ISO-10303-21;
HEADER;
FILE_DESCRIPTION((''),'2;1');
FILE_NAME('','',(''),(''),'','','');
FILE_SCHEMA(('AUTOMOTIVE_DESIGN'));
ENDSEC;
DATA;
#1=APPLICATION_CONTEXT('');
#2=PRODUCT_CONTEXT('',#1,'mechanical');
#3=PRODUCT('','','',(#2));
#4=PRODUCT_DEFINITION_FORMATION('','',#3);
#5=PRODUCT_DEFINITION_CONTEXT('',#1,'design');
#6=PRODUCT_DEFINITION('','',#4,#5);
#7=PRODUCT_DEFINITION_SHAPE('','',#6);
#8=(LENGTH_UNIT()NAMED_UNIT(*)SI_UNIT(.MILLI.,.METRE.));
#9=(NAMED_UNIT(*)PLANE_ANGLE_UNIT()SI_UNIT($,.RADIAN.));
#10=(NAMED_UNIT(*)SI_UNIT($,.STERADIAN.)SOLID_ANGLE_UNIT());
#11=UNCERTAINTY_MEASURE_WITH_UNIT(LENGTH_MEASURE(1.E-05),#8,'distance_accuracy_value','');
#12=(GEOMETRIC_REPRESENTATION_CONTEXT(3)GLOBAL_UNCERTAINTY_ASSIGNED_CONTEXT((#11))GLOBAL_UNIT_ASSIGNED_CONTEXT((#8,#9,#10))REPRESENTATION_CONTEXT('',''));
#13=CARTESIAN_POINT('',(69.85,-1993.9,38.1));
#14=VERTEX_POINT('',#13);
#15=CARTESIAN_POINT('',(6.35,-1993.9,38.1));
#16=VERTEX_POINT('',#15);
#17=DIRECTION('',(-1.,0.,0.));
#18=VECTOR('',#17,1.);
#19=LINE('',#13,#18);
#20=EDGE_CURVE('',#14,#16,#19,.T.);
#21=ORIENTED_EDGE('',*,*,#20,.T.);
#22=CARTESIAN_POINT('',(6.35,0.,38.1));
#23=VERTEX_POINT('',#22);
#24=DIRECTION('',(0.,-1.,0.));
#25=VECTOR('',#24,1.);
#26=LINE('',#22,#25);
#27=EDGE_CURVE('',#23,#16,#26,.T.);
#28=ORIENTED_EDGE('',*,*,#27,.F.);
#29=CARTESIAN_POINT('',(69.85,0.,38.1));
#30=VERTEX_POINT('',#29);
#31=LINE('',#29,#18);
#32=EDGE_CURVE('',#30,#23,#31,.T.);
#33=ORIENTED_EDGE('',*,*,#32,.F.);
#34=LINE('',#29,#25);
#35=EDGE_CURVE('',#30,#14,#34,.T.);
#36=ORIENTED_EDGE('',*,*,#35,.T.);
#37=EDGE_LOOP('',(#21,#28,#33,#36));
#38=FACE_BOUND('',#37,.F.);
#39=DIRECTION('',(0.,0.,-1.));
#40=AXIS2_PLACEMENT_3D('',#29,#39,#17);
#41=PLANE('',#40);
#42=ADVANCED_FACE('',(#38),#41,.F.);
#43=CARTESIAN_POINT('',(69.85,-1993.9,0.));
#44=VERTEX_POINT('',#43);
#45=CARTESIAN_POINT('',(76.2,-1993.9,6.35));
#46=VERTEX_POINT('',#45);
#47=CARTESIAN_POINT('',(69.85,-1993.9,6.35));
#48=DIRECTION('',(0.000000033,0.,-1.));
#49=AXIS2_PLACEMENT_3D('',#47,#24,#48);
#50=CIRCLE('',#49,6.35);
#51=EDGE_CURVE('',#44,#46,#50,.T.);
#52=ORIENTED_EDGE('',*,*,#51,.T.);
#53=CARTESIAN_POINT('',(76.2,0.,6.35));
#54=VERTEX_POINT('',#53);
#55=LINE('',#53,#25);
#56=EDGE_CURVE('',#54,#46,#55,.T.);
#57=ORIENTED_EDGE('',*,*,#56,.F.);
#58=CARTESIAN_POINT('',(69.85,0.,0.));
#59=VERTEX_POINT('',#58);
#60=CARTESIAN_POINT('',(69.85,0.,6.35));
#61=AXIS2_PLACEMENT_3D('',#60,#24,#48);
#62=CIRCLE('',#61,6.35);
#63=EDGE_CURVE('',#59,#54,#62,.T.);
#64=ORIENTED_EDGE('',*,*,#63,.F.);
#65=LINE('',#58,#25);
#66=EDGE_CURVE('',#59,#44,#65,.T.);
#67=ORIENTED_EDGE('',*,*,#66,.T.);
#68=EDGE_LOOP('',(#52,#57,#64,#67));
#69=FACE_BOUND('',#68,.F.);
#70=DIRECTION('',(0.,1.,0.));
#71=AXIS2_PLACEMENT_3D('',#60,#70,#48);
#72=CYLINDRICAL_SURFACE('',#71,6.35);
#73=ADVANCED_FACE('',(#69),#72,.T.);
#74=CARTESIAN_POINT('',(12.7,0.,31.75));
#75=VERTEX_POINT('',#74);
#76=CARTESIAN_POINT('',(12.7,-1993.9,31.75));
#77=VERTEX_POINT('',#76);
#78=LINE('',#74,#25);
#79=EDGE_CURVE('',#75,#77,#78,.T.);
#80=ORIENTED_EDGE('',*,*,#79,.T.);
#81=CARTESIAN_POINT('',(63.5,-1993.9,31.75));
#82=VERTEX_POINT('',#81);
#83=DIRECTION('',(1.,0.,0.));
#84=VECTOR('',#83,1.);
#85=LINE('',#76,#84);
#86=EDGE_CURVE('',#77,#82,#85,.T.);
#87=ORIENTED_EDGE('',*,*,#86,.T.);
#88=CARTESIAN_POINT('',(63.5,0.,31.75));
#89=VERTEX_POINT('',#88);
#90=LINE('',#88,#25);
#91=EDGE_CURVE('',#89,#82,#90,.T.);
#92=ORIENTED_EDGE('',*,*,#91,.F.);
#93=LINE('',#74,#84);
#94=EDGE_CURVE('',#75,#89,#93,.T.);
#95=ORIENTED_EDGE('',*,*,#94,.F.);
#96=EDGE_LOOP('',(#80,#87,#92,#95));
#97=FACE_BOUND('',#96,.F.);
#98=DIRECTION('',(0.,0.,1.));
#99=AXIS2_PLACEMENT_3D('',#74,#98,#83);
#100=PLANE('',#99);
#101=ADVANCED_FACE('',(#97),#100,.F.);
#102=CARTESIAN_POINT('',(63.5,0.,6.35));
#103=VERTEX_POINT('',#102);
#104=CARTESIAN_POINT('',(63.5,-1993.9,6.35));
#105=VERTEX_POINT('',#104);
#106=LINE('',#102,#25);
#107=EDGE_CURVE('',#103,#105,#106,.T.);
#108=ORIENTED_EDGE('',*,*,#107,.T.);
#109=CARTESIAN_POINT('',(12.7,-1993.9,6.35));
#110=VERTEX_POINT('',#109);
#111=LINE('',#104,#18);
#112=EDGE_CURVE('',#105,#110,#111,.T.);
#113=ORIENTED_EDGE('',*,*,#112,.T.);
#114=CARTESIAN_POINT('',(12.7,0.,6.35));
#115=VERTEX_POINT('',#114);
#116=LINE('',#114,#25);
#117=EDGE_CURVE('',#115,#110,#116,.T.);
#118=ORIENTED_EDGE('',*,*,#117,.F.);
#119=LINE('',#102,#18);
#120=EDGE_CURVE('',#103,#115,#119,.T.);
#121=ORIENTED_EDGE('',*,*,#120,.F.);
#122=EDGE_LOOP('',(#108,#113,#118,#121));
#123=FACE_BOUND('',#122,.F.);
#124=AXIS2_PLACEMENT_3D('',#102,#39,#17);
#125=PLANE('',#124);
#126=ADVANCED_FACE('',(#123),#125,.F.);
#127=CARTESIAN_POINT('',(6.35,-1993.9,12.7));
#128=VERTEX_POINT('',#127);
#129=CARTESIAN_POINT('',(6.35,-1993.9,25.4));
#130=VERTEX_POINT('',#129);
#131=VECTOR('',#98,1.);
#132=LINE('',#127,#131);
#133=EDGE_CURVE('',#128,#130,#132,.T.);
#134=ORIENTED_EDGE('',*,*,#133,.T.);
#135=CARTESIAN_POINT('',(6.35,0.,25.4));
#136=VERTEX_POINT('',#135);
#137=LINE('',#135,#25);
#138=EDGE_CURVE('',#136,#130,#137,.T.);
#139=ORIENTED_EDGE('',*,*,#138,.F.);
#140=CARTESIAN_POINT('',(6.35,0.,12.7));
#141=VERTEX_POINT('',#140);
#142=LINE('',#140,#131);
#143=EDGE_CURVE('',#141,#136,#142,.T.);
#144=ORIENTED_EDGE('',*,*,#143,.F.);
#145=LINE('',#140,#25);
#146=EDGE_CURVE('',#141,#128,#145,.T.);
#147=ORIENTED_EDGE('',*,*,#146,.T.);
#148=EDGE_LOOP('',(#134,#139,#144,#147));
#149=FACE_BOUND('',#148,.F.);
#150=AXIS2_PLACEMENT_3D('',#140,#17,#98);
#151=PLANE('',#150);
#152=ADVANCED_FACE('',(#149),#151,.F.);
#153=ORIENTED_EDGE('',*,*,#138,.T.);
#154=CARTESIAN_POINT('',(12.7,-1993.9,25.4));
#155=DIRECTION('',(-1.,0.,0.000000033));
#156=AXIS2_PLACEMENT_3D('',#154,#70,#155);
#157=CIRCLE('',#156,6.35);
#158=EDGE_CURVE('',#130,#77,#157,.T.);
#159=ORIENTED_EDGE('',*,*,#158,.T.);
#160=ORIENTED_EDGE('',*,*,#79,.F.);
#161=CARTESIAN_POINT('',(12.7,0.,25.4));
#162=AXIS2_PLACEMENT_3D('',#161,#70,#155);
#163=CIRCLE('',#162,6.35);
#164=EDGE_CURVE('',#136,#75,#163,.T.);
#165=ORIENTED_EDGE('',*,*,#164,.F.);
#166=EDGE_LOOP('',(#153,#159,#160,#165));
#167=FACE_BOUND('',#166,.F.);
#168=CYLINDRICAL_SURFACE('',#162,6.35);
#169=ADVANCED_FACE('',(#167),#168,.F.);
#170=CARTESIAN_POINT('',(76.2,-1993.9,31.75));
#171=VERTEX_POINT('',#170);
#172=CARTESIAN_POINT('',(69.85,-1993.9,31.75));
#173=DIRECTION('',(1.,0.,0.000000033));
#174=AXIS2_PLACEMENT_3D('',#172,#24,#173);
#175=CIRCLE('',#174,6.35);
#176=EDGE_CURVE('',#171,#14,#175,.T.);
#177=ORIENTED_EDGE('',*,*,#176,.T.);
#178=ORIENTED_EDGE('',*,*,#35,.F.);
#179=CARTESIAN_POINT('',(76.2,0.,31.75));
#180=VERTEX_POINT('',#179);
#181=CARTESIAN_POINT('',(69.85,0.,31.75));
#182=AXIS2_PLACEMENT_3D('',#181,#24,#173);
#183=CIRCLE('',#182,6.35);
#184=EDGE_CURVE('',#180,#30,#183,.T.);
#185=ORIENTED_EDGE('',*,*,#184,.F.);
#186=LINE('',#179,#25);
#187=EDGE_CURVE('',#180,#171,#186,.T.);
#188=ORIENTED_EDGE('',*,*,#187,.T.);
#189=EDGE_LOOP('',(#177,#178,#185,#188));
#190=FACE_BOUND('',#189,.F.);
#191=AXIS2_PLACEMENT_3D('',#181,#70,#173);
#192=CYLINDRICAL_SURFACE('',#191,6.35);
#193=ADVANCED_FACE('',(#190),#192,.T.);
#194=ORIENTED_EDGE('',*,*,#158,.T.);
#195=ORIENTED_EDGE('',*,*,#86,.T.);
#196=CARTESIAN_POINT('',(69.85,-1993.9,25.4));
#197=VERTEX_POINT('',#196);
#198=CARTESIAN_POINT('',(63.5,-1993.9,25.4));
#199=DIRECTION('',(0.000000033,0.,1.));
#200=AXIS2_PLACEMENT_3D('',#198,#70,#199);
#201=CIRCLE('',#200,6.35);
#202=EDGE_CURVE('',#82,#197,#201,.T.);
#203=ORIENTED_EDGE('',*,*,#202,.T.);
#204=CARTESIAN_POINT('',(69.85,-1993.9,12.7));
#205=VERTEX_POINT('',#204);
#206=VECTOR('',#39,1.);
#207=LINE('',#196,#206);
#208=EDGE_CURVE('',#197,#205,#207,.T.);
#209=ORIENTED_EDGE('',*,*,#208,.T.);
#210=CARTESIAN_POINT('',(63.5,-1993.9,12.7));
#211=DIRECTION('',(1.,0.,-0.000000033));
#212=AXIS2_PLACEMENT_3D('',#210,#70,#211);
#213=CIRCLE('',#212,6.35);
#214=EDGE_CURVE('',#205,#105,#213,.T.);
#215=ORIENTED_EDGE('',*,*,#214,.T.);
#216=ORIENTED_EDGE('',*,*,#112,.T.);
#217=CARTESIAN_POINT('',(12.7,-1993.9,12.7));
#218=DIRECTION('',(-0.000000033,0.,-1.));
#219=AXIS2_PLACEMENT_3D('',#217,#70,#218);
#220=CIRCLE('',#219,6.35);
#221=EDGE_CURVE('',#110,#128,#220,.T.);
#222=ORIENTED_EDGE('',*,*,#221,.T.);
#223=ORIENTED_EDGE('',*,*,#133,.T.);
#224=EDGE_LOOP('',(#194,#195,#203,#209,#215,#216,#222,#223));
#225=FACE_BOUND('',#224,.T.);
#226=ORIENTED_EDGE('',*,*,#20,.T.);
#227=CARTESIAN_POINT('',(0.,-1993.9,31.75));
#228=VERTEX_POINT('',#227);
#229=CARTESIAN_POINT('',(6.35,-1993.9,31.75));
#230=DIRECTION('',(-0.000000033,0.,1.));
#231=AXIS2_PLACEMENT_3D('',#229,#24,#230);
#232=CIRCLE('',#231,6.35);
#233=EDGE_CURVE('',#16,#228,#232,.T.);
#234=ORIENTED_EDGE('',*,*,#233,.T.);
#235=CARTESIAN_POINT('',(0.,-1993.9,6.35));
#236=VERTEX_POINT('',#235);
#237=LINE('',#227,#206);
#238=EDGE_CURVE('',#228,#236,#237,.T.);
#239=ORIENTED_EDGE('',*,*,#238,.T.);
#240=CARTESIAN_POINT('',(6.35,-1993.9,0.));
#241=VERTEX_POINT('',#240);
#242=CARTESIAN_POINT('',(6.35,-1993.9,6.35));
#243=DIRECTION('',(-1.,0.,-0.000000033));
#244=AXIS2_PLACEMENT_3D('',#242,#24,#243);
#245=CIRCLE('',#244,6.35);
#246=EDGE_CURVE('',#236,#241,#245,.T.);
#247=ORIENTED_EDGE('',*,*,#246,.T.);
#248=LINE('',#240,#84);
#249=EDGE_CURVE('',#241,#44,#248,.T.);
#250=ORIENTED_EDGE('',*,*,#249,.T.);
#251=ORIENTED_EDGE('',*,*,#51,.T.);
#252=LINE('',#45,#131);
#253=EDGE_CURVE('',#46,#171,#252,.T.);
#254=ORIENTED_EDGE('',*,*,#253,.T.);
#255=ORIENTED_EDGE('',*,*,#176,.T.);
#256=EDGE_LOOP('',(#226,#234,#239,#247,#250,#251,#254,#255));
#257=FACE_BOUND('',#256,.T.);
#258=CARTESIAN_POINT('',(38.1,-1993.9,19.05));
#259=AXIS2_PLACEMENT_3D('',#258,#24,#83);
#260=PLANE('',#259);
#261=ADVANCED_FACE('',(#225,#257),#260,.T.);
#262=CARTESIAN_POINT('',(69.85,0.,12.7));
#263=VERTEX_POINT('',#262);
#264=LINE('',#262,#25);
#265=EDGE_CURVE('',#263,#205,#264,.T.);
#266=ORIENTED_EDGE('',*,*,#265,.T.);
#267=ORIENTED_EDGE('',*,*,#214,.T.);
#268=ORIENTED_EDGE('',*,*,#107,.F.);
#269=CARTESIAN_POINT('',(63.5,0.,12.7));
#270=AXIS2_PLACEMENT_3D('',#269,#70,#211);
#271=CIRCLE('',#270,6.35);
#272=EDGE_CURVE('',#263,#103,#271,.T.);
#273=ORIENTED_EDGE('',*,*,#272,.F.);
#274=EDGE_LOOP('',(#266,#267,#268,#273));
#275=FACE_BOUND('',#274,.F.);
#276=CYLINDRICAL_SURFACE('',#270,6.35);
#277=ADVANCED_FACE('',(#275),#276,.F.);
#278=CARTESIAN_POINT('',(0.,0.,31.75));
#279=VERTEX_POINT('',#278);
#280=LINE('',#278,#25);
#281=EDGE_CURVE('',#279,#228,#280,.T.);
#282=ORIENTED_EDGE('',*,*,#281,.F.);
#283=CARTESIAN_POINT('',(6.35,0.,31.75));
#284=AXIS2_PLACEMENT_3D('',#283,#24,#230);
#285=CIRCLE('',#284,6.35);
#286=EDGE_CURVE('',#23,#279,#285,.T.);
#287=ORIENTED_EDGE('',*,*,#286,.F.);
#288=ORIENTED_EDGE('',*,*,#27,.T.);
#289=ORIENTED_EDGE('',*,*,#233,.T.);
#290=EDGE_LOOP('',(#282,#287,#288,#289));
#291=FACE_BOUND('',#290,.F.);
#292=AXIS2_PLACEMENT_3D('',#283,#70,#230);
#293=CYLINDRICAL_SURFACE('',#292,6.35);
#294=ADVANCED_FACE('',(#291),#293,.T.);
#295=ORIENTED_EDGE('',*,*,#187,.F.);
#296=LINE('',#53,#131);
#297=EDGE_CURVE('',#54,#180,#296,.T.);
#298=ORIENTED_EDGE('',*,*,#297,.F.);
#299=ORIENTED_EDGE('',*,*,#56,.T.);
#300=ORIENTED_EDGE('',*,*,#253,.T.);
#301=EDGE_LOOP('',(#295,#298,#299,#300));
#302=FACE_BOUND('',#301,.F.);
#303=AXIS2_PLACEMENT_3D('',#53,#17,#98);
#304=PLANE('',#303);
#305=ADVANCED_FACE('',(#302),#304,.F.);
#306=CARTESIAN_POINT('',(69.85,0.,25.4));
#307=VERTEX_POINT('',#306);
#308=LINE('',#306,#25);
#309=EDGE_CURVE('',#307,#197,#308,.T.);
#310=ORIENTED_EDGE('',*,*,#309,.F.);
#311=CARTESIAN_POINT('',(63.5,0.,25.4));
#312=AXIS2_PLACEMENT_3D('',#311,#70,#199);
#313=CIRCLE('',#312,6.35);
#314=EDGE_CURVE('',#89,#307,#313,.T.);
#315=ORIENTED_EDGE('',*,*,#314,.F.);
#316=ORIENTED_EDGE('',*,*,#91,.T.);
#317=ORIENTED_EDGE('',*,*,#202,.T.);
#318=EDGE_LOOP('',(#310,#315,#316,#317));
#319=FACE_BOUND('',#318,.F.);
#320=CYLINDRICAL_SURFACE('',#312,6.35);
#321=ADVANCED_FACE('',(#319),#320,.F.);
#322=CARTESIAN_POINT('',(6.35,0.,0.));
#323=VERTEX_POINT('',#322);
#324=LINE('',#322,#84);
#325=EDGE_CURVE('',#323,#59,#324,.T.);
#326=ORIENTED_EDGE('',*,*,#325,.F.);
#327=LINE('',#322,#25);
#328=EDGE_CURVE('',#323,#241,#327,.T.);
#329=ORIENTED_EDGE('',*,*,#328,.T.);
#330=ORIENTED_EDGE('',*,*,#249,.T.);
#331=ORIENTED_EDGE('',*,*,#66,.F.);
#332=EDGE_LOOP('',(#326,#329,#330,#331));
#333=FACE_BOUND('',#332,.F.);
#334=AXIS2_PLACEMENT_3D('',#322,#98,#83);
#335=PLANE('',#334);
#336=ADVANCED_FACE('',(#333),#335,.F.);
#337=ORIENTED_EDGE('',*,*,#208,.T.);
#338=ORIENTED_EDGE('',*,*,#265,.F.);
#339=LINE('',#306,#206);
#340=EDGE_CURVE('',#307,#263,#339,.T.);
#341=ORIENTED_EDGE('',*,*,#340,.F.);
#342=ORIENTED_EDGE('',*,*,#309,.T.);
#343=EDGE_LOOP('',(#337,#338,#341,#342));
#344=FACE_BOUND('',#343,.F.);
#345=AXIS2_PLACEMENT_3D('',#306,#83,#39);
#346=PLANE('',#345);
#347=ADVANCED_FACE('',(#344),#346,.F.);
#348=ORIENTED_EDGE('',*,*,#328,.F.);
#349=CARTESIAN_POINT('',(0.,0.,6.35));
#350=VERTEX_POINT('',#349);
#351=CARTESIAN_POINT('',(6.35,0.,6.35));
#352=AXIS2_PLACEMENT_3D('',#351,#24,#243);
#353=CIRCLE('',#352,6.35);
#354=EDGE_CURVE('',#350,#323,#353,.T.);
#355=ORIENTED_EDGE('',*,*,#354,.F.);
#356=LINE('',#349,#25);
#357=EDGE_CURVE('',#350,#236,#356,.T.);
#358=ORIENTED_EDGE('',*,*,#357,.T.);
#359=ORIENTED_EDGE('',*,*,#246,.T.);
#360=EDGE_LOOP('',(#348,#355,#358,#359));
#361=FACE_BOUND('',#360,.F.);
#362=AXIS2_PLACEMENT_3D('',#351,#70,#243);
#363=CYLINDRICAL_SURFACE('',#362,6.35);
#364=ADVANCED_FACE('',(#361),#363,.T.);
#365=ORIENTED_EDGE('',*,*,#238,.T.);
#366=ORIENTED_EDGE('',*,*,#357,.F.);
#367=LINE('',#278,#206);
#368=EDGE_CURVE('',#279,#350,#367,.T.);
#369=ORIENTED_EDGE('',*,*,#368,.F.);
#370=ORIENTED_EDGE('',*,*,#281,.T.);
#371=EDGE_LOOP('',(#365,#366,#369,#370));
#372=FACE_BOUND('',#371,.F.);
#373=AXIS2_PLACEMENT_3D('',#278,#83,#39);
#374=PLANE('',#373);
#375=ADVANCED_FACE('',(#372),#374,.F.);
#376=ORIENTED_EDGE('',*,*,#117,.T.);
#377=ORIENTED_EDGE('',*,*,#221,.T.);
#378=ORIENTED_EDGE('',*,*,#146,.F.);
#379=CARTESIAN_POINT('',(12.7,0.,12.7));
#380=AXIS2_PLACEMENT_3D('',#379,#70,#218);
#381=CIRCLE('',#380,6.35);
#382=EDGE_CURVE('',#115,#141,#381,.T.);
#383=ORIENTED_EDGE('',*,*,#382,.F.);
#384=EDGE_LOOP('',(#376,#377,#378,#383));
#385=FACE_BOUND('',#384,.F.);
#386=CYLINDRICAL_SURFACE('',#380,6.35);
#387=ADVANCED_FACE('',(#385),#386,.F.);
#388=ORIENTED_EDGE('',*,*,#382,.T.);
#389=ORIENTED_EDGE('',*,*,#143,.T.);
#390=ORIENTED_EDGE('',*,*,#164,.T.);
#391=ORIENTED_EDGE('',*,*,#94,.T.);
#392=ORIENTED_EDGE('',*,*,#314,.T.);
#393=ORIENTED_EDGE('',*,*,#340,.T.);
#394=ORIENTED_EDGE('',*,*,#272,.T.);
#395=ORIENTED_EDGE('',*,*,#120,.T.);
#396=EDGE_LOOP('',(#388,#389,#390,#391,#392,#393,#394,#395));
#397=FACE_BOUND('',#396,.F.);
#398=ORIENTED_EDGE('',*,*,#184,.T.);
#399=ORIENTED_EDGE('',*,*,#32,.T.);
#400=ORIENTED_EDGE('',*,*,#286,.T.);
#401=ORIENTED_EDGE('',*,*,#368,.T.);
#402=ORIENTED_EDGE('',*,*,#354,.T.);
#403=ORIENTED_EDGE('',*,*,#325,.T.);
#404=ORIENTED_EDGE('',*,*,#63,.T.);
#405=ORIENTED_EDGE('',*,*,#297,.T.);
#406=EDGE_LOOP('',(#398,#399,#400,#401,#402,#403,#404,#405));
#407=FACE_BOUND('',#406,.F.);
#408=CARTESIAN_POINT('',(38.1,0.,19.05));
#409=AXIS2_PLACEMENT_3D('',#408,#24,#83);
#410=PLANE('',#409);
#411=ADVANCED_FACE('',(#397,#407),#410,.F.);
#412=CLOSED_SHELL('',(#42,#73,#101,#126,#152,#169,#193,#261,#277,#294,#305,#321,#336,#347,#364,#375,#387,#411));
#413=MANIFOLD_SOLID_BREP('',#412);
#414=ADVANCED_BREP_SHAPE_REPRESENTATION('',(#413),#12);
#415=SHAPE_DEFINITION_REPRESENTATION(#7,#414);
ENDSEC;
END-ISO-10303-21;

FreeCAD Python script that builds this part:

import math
import FreeCAD as App
import Part
import Sketcher

V = App.Vector
Q = App.Units.Quantity

doc = App.newDocument("Part")
params = doc.addObject("Spreadsheet::Sheet", "Params")
for row, (alias, value) in enumerate([
    ("sketch1_width", "2 in"),
    ("sketch1_height", "1 in"),
    ("sketch1_radius", "0.25 in"),
    ("pad1_length", "78.5 in"),
], start=1):
    params.set(f"A{row}", alias)
    params.set(f"B{row}", "=" + value)
    params.setAlias(f"B{row}", alias)

body = doc.addObject("PartDesign::Body", "Body")

# Sketch on XZ plane
sketch1 = body.newObject("Sketcher::SketchObject", "Sketch")
sketch1.AttachmentSupport = (doc.getObject("XZ_Plane"), [""])
sketch1.MapMode = "FlatFace"
sketch1.addGeometry([
    Part.ArcOfCircle(Part.Circle(V(6, 6, 0), V(0, 0, 1), 6), math.radians(-180), math.radians(-90)),  # 0
    Part.LineSegment(V(6, 0, 0), V(70, 0, 0)),  # 1
    Part.ArcOfCircle(Part.Circle(V(70, 6, 0), V(0, 0, 1), 6), math.radians(-90), math.radians(0)),  # 2
    Part.LineSegment(V(76, 6, 0), V(76, 32, 0)),  # 3
    Part.ArcOfCircle(Part.Circle(V(70, 32, 0), V(0, 0, 1), 6), math.radians(0), math.radians(90)),  # 4
    Part.LineSegment(V(70, 38, 0), V(6, 38, 0)),  # 5
    Part.ArcOfCircle(Part.Circle(V(6, 32, 0), V(0, 0, 1), 6), math.radians(90), math.radians(180)),  # 6
    Part.LineSegment(V(0, 32, 0), V(0, 6, 0)),  # 7
    Part.ArcOfCircle(Part.Circle(V(63, 13, 0), V(0, 0, 1), 6), math.radians(-90), math.radians(0)),  # 8
    Part.LineSegment(V(64, 6, 0), V(13, 6, 0)),  # 9
    Part.ArcOfCircle(Part.Circle(V(13, 13, 0), V(0, 0, 1), 6), math.radians(-180), math.radians(-90)),  # 10
    Part.LineSegment(V(6, 13, 0), V(6, 25, 0)),  # 11
    Part.ArcOfCircle(Part.Circle(V(13, 25, 0), V(0, 0, 1), 6), math.radians(90), math.radians(180)),  # 12
    Part.LineSegment(V(13, 32, 0), V(64, 32, 0)),  # 13
    Part.ArcOfCircle(Part.Circle(V(63, 25, 0), V(0, 0, 1), 6), math.radians(0), math.radians(90)),  # 14
    Part.LineSegment(V(70, 25, 0), V(70, 13, 0)),  # 15
], False)
sketch1.addConstraint([
    Sketcher.Constraint("Tangent", 0, 2, 1, 1),
    Sketcher.Constraint("Tangent", 1, 2, 2, 1),
    Sketcher.Constraint("Tangent", 2, 2, 3, 1),
    Sketcher.Constraint("Tangent", 3, 2, 4, 1),
    Sketcher.Constraint("Tangent", 4, 2, 5, 1),
    Sketcher.Constraint("Tangent", 5, 2, 6, 1),
    Sketcher.Constraint("Tangent", 6, 2, 7, 1),
    Sketcher.Constraint("Tangent", 7, 2, 0, 1),
    Sketcher.Constraint("Tangent", 8, 1, 9, 1),
    Sketcher.Constraint("Tangent", 9, 2, 10, 2),
    Sketcher.Constraint("Tangent", 10, 1, 11, 1),
    Sketcher.Constraint("Tangent", 11, 2, 12, 2),
    Sketcher.Constraint("Tangent", 12, 1, 13, 1),
    Sketcher.Constraint("Tangent", 13, 2, 14, 2),
    Sketcher.Constraint("Tangent", 14, 1, 15, 1),
    Sketcher.Constraint("Tangent", 15, 2, 8, 2),
    Sketcher.Constraint("Horizontal", 1),
    Sketcher.Constraint("Vertical", 3),
    Sketcher.Constraint("Horizontal", 5),
    Sketcher.Constraint("Vertical", 7),
    Sketcher.Constraint("Horizontal", 9),
    Sketcher.Constraint("Vertical", 11),
    Sketcher.Constraint("Horizontal", 13),
    Sketcher.Constraint("Vertical", 15),
    Sketcher.Constraint("Equal", 0, 2),
    Sketcher.Constraint("Equal", 2, 4),
    Sketcher.Constraint("Equal", 4, 6),
    Sketcher.Constraint("Equal", 6, 8),
    Sketcher.Constraint("Equal", 8, 10),
    Sketcher.Constraint("Equal", 10, 12),
    Sketcher.Constraint("Equal", 12, 14),
    Sketcher.Constraint("PointOnObject", 0, 2, -1),
    Sketcher.Constraint("PointOnObject", 6, 2, -2),
    Sketcher.Constraint("Horizontal", 7, 2, 8, 1),
    Sketcher.Constraint("Horizontal", 6, 2, 12, 1),
    Sketcher.Constraint("Vertical", 5, 2, 10, 1),
    Sketcher.Constraint("Vertical", 4, 2, 14, 1),
    Sketcher.Constraint("DistanceX", 9, 2, 9, 1, Q("2 in")),
    Sketcher.Constraint("DistanceY", 3, 1, 3, 2, Q("1 in")),
    Sketcher.Constraint("Radius", 0, Q("0.25 in")),
])
sketch1.setExpression("Constraints[37]", "Params.sketch1_width")
sketch1.setExpression("Constraints[38]", "Params.sketch1_height")
sketch1.setExpression("Constraints[39]", "Params.sketch1_radius")
pad1 = body.newObject("PartDesign::Pad", "Pad")
pad1.Profile = sketch1
pad1.setExpression("Length", "Params.pad1_length")

doc.recompute()
